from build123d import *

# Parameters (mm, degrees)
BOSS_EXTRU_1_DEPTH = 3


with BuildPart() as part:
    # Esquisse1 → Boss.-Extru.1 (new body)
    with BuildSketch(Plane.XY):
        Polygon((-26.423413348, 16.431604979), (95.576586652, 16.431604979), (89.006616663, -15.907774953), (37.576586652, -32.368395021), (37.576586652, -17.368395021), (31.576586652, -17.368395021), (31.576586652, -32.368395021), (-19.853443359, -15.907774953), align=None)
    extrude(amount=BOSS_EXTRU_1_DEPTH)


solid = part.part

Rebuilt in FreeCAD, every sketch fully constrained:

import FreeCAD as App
import Part
import Sketcher


def add_polygon(sketch, points):
    """Adds a closed chain of lines whose ends are joined by coincident constraints."""
    first, n = sketch.GeometryCount, len(points)
    for a, b in zip(points, points[1:] + points[:1]):
        sketch.addGeometry(Part.LineSegment(App.Vector(*a, 0), App.Vector(*b, 0)), False)
    for i in range(n):
        sketch.addConstraint(Sketcher.Constraint("Coincident", first + i, 2, first + (i + 1) % n, 1))

doc = App.newDocument("Part")
body = doc.addObject("PartDesign::Body", "Body")

sketch1 = body.newObject("Sketcher::SketchObject", "Sketch")
sketch1.AttachmentSupport = (doc.getObject("XY_Plane"), [""])
sketch1.MapMode = "FlatFace"
add_polygon(sketch1, [(96, 16), (-26, 16), (-20, -16), (32, -32), (32, -17), (38, -17), (38, -32), (89, -16)])
sketch1.addConstraint([
    Sketcher.Constraint("Horizontal", 0),
    Sketcher.Constraint("Vertical", 3),
    Sketcher.Constraint("Horizontal", 4),
    Sketcher.Constraint("Vertical", 5),
    Sketcher.Constraint("Horizontal", 2, 2, 5, 2),
    Sketcher.Constraint("Horizontal", 1, 2, 6, 2),
    Sketcher.Constraint("Equal", 2, 6),
    Sketcher.Constraint("Equal", 1, 7),
    Sketcher.Constraint("DistanceX", 0, 2, 0, 1, 122.0),
    Sketcher.Constraint("DistanceX", 4, 1, 4, 2, 6.0),
    Sketcher.Constraint("DistanceY", 3, 1, 3, 2, 15.0),
    Sketcher.Constraint("Distance", 1, 33.0),
    Sketcher.Constraint("Distance", 2, 54.0),
    Sketcher.Constraint("DistanceY", 2, 2, 0, 2, 48.8),
    Sketcher.Constraint("DistanceX", 0, 2, -1, 1, 26.423413),
    Sketcher.Constraint("DistanceY", -1, 1, 0, 2, 16.431605),
])
pad1 = body.newObject("PartDesign::Pad", "Pad")
pad1.Profile = sketch1
pad1.Length = 3

doc.recompute()
